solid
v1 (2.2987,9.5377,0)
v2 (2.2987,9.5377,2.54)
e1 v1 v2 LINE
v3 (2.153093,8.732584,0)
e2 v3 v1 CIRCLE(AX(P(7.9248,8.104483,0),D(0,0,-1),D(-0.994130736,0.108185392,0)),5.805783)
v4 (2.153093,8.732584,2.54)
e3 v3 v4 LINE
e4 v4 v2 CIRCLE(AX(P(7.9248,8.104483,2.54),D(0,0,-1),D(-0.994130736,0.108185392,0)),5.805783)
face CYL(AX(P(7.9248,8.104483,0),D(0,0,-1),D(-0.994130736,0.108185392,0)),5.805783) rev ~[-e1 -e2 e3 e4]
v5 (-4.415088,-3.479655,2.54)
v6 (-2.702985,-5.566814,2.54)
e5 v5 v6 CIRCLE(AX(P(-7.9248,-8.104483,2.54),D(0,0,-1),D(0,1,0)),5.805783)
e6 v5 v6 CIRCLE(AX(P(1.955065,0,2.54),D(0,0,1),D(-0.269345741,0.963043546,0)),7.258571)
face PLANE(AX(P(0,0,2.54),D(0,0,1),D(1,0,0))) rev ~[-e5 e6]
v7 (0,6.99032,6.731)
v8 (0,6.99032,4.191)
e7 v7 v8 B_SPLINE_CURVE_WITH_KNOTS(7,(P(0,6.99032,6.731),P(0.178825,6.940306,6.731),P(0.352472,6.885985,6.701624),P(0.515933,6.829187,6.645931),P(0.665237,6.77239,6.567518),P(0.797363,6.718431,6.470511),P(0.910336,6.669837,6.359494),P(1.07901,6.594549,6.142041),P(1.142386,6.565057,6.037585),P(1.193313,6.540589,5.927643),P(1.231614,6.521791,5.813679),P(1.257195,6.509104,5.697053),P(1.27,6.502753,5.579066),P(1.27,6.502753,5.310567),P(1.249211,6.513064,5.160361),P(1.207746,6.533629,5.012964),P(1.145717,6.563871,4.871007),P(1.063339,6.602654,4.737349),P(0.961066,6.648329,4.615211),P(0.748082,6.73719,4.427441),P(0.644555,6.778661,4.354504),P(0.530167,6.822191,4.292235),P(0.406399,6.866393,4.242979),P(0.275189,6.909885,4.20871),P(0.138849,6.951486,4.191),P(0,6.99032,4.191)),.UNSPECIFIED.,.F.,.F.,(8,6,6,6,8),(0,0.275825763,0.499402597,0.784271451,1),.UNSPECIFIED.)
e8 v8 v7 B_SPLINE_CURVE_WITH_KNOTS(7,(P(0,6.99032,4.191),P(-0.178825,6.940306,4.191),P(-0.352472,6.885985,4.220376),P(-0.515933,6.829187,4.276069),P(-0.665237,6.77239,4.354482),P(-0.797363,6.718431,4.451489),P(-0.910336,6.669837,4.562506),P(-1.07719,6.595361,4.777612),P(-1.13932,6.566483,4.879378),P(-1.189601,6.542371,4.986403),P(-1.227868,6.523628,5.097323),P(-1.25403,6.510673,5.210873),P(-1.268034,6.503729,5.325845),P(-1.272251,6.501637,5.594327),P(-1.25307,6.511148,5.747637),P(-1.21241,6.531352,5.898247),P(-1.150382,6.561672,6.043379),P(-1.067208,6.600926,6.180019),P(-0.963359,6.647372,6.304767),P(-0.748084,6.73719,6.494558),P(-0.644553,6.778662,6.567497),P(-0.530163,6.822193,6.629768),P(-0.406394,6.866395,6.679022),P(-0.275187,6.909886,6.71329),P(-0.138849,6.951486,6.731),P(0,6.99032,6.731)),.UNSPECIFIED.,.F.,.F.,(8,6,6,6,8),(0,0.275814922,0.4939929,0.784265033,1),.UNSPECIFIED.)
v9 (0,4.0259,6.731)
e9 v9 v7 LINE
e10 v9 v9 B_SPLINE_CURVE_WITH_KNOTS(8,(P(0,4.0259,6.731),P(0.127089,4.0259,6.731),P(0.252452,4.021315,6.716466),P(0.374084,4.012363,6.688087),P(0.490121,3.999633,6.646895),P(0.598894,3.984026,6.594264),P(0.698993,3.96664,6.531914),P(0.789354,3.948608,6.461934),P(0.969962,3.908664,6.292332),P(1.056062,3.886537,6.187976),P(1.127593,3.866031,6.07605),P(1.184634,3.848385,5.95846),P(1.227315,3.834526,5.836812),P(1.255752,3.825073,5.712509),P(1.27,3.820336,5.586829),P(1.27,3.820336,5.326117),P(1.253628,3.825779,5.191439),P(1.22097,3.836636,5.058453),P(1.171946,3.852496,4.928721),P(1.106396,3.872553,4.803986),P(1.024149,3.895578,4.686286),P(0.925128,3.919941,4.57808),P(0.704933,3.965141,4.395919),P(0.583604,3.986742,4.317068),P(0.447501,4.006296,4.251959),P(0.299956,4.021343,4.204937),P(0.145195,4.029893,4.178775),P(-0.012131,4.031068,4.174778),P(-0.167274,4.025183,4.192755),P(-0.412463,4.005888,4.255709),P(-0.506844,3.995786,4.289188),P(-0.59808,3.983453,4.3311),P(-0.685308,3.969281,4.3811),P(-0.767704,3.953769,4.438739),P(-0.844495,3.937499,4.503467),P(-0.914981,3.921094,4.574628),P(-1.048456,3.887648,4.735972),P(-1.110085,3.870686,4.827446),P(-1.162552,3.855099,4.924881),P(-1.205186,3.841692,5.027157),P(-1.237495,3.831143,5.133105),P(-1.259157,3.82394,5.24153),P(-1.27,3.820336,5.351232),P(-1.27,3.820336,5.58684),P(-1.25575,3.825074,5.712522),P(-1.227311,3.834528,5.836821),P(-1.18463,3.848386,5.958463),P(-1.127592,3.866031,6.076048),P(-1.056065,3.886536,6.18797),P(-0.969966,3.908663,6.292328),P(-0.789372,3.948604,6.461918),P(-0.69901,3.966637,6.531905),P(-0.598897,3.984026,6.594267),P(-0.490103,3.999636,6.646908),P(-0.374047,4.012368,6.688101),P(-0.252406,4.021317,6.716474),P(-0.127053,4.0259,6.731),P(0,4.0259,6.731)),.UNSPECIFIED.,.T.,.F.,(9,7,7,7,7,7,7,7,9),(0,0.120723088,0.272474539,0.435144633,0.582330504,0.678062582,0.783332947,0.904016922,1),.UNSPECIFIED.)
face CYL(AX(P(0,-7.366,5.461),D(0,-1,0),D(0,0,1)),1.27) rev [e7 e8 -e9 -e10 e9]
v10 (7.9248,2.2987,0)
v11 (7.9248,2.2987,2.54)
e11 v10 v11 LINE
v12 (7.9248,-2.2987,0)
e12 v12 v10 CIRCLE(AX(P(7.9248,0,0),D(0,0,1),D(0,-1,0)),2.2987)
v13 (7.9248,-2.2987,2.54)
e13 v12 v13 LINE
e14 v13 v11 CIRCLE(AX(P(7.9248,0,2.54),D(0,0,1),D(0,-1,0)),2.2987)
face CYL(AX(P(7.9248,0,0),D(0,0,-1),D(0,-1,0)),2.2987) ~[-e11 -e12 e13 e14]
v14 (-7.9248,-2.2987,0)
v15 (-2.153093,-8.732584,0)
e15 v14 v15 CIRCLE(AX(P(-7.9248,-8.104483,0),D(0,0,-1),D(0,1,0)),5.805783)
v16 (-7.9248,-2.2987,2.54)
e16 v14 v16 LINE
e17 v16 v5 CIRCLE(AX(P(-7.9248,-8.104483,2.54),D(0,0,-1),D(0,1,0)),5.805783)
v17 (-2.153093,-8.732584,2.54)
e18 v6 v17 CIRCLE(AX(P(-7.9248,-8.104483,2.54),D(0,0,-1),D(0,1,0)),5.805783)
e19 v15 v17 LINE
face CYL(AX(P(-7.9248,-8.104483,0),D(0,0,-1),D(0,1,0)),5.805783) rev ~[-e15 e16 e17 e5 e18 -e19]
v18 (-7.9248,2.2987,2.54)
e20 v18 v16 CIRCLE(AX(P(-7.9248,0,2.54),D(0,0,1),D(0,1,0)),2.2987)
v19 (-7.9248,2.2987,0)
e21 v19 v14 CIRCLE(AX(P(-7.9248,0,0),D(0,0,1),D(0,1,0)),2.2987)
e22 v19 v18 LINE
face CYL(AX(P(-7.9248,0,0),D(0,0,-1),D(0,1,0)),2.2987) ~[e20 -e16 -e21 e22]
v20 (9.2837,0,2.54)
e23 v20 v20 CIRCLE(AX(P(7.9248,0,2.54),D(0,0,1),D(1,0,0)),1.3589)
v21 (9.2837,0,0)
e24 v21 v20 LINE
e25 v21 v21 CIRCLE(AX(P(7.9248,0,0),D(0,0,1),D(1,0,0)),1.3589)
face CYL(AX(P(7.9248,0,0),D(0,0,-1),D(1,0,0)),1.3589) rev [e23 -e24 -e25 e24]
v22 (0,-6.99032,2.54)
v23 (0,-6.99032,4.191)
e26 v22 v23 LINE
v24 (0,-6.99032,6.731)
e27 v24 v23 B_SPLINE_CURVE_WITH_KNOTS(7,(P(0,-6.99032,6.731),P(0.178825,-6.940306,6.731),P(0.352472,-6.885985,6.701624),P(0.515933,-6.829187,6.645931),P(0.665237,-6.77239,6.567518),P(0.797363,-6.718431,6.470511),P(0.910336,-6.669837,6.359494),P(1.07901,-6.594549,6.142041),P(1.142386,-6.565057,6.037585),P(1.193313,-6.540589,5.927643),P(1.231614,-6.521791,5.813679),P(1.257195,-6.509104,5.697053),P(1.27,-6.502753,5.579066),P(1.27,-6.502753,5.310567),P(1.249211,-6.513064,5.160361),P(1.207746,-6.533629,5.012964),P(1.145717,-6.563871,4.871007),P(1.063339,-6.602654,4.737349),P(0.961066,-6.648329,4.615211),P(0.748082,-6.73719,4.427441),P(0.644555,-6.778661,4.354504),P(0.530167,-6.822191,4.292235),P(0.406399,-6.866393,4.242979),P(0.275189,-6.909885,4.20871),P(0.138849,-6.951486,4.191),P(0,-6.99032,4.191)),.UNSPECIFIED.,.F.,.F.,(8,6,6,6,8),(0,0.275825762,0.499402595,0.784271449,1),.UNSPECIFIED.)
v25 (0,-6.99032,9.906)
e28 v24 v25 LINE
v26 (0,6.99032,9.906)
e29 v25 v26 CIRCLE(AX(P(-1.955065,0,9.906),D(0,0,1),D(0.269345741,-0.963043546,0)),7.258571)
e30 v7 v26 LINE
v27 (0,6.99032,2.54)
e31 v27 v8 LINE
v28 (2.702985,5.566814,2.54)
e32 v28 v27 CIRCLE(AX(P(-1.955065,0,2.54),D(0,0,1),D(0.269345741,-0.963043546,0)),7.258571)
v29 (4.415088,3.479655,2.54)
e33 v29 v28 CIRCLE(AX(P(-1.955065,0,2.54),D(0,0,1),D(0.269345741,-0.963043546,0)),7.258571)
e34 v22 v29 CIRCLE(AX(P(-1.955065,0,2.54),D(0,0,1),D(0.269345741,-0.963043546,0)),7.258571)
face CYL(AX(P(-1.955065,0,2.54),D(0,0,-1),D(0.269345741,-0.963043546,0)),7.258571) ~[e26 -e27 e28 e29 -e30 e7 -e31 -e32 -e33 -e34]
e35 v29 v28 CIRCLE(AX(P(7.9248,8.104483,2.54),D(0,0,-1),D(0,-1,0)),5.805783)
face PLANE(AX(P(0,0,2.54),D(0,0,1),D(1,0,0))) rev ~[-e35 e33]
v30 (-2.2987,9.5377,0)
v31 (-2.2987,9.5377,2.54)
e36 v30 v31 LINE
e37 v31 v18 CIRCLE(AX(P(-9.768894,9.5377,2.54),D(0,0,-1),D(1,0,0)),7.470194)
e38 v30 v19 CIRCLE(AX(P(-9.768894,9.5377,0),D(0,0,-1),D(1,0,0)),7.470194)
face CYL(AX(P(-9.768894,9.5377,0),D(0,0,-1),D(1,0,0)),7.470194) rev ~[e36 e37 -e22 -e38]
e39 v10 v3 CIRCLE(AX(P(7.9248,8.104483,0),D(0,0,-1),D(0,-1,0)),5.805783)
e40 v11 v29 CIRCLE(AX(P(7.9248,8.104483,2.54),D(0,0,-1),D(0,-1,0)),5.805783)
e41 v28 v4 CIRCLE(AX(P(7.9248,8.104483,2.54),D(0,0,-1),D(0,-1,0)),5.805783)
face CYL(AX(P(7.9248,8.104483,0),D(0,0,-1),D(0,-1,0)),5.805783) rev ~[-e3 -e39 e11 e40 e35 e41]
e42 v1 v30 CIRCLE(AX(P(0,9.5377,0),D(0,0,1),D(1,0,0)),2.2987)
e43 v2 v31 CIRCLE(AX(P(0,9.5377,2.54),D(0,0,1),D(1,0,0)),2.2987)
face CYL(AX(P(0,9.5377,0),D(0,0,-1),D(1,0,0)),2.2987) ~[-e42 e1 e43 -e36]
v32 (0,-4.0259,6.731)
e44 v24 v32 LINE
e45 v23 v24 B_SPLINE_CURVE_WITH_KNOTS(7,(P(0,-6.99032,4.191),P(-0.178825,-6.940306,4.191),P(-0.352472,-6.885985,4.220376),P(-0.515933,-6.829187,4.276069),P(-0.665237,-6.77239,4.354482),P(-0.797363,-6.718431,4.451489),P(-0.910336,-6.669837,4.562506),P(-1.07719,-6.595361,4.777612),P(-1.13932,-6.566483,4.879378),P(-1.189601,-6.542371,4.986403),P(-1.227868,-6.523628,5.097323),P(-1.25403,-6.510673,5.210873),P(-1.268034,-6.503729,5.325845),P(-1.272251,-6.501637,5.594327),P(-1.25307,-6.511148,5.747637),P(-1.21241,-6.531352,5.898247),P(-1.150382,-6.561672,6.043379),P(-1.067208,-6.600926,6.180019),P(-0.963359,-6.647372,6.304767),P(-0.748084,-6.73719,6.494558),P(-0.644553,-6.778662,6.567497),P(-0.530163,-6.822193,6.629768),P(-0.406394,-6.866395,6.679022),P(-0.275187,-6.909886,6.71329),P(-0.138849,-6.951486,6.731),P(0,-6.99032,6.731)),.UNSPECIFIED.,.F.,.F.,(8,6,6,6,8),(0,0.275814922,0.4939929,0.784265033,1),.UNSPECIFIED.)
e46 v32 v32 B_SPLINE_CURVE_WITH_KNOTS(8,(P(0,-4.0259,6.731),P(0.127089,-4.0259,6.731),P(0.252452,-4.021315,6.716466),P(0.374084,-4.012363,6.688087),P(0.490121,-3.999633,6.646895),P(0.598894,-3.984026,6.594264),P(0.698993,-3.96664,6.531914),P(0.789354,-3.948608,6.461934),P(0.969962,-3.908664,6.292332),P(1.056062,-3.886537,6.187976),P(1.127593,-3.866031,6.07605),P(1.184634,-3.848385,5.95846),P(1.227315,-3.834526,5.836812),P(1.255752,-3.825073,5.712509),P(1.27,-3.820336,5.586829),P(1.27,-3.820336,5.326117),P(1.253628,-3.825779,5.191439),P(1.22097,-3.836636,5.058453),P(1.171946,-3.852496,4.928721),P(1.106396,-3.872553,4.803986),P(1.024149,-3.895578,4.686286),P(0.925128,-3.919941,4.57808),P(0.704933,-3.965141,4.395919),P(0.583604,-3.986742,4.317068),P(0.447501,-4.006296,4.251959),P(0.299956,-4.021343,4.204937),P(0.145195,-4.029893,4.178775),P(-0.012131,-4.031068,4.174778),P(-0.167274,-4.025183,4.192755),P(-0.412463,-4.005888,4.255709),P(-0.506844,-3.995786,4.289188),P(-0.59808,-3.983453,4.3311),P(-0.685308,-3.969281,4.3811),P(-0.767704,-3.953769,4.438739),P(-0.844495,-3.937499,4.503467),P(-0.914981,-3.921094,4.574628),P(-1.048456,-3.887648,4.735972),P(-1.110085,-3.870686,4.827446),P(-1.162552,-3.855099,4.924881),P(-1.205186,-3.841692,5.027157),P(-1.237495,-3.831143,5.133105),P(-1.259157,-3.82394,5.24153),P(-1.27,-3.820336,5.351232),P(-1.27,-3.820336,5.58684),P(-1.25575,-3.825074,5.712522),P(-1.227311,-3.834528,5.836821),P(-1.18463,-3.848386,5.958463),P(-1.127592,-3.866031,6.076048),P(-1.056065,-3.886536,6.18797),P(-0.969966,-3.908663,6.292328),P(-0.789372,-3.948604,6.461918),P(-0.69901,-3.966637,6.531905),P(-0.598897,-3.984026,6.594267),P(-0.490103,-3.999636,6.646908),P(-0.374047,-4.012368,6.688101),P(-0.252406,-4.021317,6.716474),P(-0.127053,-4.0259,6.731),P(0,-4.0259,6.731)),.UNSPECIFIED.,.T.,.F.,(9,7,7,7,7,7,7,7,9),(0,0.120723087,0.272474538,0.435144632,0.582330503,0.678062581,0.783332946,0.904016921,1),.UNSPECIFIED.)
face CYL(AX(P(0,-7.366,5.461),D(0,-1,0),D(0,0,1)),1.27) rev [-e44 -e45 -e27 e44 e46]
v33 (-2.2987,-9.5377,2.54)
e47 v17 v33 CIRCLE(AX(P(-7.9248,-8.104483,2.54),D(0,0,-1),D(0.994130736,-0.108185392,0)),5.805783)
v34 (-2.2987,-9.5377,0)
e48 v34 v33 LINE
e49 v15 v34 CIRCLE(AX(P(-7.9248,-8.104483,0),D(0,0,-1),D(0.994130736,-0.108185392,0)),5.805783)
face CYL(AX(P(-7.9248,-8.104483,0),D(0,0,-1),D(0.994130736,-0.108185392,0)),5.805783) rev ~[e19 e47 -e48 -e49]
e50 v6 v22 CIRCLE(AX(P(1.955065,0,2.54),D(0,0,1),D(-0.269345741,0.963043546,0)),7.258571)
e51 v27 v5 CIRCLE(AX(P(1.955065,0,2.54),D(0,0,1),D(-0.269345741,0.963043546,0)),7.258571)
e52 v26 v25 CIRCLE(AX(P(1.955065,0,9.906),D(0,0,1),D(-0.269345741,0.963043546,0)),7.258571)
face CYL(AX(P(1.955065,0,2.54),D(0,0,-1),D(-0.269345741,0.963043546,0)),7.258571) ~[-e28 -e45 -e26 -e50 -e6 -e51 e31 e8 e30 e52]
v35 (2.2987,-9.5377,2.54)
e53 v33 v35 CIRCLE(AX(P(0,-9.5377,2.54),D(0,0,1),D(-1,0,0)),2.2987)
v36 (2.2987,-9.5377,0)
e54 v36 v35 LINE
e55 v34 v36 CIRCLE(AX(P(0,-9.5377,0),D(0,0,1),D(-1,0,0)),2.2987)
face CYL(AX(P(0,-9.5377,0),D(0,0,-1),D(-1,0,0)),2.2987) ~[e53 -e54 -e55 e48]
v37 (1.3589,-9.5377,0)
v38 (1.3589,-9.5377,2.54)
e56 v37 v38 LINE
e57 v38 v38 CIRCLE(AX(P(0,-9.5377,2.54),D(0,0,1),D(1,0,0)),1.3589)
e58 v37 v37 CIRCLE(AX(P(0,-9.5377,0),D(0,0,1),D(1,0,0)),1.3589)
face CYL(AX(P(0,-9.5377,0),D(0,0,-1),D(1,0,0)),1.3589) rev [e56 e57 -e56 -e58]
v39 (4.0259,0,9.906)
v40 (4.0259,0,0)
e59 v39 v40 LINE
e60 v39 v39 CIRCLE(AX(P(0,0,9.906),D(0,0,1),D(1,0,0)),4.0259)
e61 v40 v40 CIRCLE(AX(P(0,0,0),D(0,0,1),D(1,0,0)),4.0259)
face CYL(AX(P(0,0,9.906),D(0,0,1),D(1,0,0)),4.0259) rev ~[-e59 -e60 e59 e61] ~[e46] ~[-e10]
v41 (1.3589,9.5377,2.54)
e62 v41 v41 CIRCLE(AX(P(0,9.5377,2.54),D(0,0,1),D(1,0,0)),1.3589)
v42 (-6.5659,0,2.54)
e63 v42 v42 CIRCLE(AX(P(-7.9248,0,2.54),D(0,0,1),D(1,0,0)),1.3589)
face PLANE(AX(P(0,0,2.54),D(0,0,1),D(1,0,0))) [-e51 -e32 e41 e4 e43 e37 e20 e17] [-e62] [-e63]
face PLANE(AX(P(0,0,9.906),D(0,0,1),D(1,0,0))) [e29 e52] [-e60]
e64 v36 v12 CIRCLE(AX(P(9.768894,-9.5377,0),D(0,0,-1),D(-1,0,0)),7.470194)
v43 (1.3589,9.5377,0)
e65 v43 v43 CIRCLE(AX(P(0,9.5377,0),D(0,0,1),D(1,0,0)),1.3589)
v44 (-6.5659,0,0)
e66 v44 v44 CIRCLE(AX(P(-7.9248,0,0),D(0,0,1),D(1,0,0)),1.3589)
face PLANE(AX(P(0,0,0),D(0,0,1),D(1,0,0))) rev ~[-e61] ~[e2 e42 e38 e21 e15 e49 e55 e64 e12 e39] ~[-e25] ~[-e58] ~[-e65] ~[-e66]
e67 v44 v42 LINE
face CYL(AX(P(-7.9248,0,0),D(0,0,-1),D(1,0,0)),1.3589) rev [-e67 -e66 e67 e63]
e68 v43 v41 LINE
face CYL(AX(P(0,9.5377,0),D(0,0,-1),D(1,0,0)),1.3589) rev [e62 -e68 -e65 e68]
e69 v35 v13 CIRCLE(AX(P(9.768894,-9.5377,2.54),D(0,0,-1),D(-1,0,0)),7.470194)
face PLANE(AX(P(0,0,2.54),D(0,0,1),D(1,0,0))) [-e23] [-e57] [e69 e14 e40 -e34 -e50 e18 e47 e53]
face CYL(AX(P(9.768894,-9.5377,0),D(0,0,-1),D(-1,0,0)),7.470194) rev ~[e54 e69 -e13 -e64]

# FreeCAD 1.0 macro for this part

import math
import FreeCAD as App
import Part
import Sketcher
from FreeCAD import Vector
Q = App.Units.Quantity

doc = App.newDocument("Part")
params = doc.addObject("Spreadsheet::Sheet", "Params")
for row, (alias, value) in enumerate([
    ("sketch1_diameter", "0.107 in"),
    ("pad1_length", "0.1 in"),
    ("pad2_length", "0.29 in"),
    ("sketch3_diameter", "0.317 in"),
    ("sketch4_diameter", "0.1 in"),
], start=1):
    params.set(f"A{row}", alias)
    params.set(f"B{row}", "=" + value)
    params.setAlias(f"B{row}", alias)

body = doc.addObject("PartDesign::Body", "Body")

# Sketch on XY plane
sketch1 = body.newObject("Sketcher::SketchObject", "Sketch")
sketch1.AttachmentSupport = (doc.getObject("XY_Plane"), [""])
sketch1.MapMode = "FlatFace"
sketch1.addGeometry(Part.ArcOfCircle(Part.Circle(Vector(7.9248, 8.104483, 0), Vector(0, 0, 1), 5.805783), math.radians(173.789278), math.radians(270)), False)
sketch1.addGeometry(Part.ArcOfCircle(Part.Circle(Vector(7.9248, 8.104483, 0), Vector(0, 0, 1), 5.805783), math.radians(165.708202), math.radians(173.789278)), False)
sketch1.addGeometry(Part.ArcOfCircle(Part.Circle(Vector(0, 9.5377, 0), Vector(0, 0, 1), 2.2987), math.radians(0), math.radians(180)), False)
sketch1.addGeometry(Part.ArcOfCircle(Part.Circle(Vector(-9.768894, 9.5377, 0), Vector(0, 0, 1), 7.470194), math.radians(-75.708201), math.radians(0)), False)
sketch1.addGeometry(Part.ArcOfCircle(Part.Circle(Vector(-7.9248, 0, 0), Vector(0, 0, 1), 2.2987), math.radians(90), math.radians(270)), False)
sketch1.addGeometry(Part.ArcOfCircle(Part.Circle(Vector(-7.9248, -8.104483, 0), Vector(0, 0, 1), 5.805783), math.radians(-6.210722), math.radians(90)), False)
sketch1.addGeometry(Part.ArcOfCircle(Part.Circle(Vector(-7.9248, -8.104483, 0), Vector(0, 0, 1), 5.805783), math.radians(-14.291798), math.radians(-6.210722)), False)
sketch1.addGeometry(Part.ArcOfCircle(Part.Circle(Vector(0, -9.5377, 0), Vector(0, 0, 1), 2.2987), math.radians(180), math.radians(360)), False)
sketch1.addGeometry(Part.ArcOfCircle(Part.Circle(Vector(9.768894, -9.5377, 0), Vector(0, 0, 1), 7.470194), math.radians(104.291799), math.radians(180)), False)
sketch1.addGeometry(Part.ArcOfCircle(Part.Circle(Vector(7.9248, 0, 0), Vector(0, 0, 1), 2.2987), math.radians(-90), math.radians(90)), False)
sketch1.addGeometry(Part.Circle(Vector(0, -9.5377, 0), Vector(0, 0, 1), 1.3589), False)
sketch1.addGeometry(Part.Circle(Vector(-7.9248, 0, 0), Vector(0, 0, 1), 1.3589), False)
sketch1.addGeometry(Part.Circle(Vector(7.9248, 0, 0), Vector(0, 0, 1), 1.3589), False)
sketch1.addGeometry(Part.Circle(Vector(0, 9.5377, 0), Vector(0, 0, 1), 1.3589), False)
sketch1.addConstraint(Sketcher.Constraint("Tangent", 0, 1, 1, 2))
sketch1.addConstraint(Sketcher.Constraint("Coincident", 1, 1, 2, 1))
sketch1.addConstraint(Sketcher.Constraint("Tangent", 2, 2, 3, 2))
sketch1.addConstraint(Sketcher.Constraint("Coincident", 3, 1, 4, 1))
sketch1.addConstraint(Sketcher.Constraint("Tangent", 4, 2, 5, 2))
sketch1.addConstraint(Sketcher.Constraint("Tangent", 5, 1, 6, 2))
sketch1.addConstraint(Sketcher.Constraint("Coincident", 6, 1, 7, 1))
sketch1.addConstraint(Sketcher.Constraint("Tangent", 7, 2, 8, 2))
sketch1.addConstraint(Sketcher.Constraint("Coincident", 8, 1, 9, 1))
sketch1.addConstraint(Sketcher.Constraint("Tangent", 9, 2, 0, 2))
sketch1.addConstraint(Sketcher.Constraint("Coincident", 10, 3, 7, 3))
sketch1.addConstraint(Sketcher.Constraint("Coincident", 11, 3, 4, 3))
sketch1.addConstraint(Sketcher.Constraint("Coincident", 12, 3, 9, 3))
sketch1.addConstraint(Sketcher.Constraint("Coincident", 13, 3, 2, 3))
sketch1.addConstraint(Sketcher.Constraint("Equal", 0, 1))
sketch1.addConstraint(Sketcher.Constraint("Equal", 2, 4))
sketch1.addConstraint(Sketcher.Constraint("Equal", 1, 5))
sketch1.addConstraint(Sketcher.Constraint("Equal", 5, 6))
sketch1.addConstraint(Sketcher.Constraint("Equal", 4, 7))
sketch1.addConstraint(Sketcher.Constraint("Equal", 3, 8))
sketch1.addConstraint(Sketcher.Constraint("Equal", 7, 9))
sketch1.addConstraint(Sketcher.Constraint("Equal", 10, 11))
sketch1.addConstraint(Sketcher.Constraint("Equal", 11, 12))
sketch1.addConstraint(Sketcher.Constraint("Equal", 12, 13))
sketch1.addConstraint(Sketcher.Constraint("Symmetric", 0, 3, 5, 3, -1, 1))
sketch1.addConstraint(Sketcher.Constraint("Symmetric", 2, 3, 7, 3, -1, 1))
sketch1.addConstraint(Sketcher.Constraint("Symmetric", 4, 3, 9, 3, -2))
sketch1.addConstraint(Sketcher.Constraint("Symmetric", 1, 1, 2, 2, -2))
sketch1.addConstraint(Sketcher.Constraint("Horizontal", 2, 3, 3, 3))
sketch1.addConstraint(Sketcher.Constraint("Horizontal", 7, 3, 8, 3))
sketch1.addConstraint(Sketcher.Constraint("Vertical", 4, 3, 5, 3))
sketch1.addConstraint(Sketcher.Constraint("Vertical", 11, 3, 3, 1))
sketch1.addConstraint(Sketcher.Constraint("Diameter", 10, Q("0.107 in")))
sketch1.addConstraint(Sketcher.Constraint("Radius", 2, Q("0.0905 in")))
sketch1.addConstraint(Sketcher.Constraint("DistanceX", -1, 1, 0, 3, Q("0.312 in")))
sketch1.addConstraint(Sketcher.Constraint("DistanceY", 7, 3, 2, 3, Q("0.751 in")))
sketch1.addConstraint(Sketcher.Constraint("DistanceY", 0, 3, 0, 1, 0.628101))
sketch1.addConstraint(Sketcher.Constraint("DistanceY", 5, 1, 5, 3, 0.628101))
sketch1.setExpression("Constraints[32]", "Params.sketch1_diameter")
pad1 = body.newObject("PartDesign::Pad", "Pad")
pad1.Profile = sketch1
pad1.setExpression("Length", "Params.pad1_length")

# Sketch on XY plane
sketch2 = body.newObject("Sketcher::SketchObject", "Sketch001")
sketch2.AttachmentSupport = (doc.getObject("XY_Plane"), [""])
sketch2.MapMode = "FlatFace"
sketch2.AttachmentOffset = App.Placement(Vector(0, 0, 0.1 * 25.4), App.Rotation())
sketch2.addGeometry(Part.ArcOfCircle(Part.Circle(Vector(1.955065, 0, 0), Vector(0, 0, 1), 7.258571), math.radians(105.625338), math.radians(254.374662)), False)
sketch2.addGeometry(Part.ArcOfCircle(Part.Circle(Vector(-1.955065, 0, 0), Vector(0, 0, 1), 7.258571), math.radians(-74.374662), math.radians(74.374662)), False)
sketch2.addConstraint(Sketcher.Constraint("Coincident", 0, 1, 1, 2))
sketch2.addConstraint(Sketcher.Constraint("Coincident", 1, 1, 0, 2))
sketch2.addConstraint(Sketcher.Constraint("Equal", 0, 1))
sketch2.addConstraint(Sketcher.Constraint("Symmetric", 0, 3, 1, 3, -1, 1))
sketch2.addConstraint(Sketcher.Constraint("PointOnObject", 0, 3, -1))
sketch2.addConstraint(Sketcher.Constraint("Radius", 0, 7.258571))
sketch2.addConstraint(Sketcher.Constraint("DistanceY", -1, 1, 0, 1, 6.99032))
pad2 = body.newObject("PartDesign::Pad", "Pad001")
pad2.Profile = sketch2
pad2.setExpression("Length", "Params.pad2_length")

# Sketch on XY plane
sketch3 = body.newObject("Sketcher::SketchObject", "Sketch002")
sketch3.AttachmentSupport = (doc.getObject("XY_Plane"), [""])
sketch3.MapMode = "FlatFace"
sketch3.AttachmentOffset = App.Placement(Vector(0, 0, 0.39 * 25.4), App.Rotation())
sketch3.addGeometry(Part.Circle(Vector(0, 0, 0), Vector(0, 0, 1), 4.0259), False)
sketch3.addConstraint(Sketcher.Constraint("Coincident", 0, 3, -1, 1))
sketch3.addConstraint(Sketcher.Constraint("Diameter", 0, Q("0.317 in")))
sketch3.setExpression("Constraints[1]", "Params.sketch3_diameter")
pocket1 = body.newObject("PartDesign::Pocket", "Pocket")
pocket1.Profile = sketch3
pocket1.Type = "ThroughAll"

# Sketch on XZ plane
sketch4 = body.newObject("Sketcher::SketchObject", "Sketch003")
sketch4.AttachmentSupport = (doc.getObject("XZ_Plane"), [""])
sketch4.MapMode = "FlatFace"
sketch4.addGeometry(Part.Circle(Vector(0, 5.461, 0), Vector(0, 0, 1), 1.27), False)
sketch4.addConstraint(Sketcher.Constraint("PointOnObject", 0, 3, -2))
sketch4.addConstraint(Sketcher.Constraint("Diameter", 0, Q("0.1 in")))
sketch4.addConstraint(Sketcher.Constraint("DistanceY", -1, 1, 0, 3, Q("0.215 in")))
sketch4.setExpression("Constraints[1]", "Params.sketch4_diameter")
pocket2 = body.newObject("PartDesign::Pocket", "Pocket001")
pocket2.Profile = sketch4
pocket2.Type = "ThroughAll"
pocket2.Midplane = True

doc.recompute()
